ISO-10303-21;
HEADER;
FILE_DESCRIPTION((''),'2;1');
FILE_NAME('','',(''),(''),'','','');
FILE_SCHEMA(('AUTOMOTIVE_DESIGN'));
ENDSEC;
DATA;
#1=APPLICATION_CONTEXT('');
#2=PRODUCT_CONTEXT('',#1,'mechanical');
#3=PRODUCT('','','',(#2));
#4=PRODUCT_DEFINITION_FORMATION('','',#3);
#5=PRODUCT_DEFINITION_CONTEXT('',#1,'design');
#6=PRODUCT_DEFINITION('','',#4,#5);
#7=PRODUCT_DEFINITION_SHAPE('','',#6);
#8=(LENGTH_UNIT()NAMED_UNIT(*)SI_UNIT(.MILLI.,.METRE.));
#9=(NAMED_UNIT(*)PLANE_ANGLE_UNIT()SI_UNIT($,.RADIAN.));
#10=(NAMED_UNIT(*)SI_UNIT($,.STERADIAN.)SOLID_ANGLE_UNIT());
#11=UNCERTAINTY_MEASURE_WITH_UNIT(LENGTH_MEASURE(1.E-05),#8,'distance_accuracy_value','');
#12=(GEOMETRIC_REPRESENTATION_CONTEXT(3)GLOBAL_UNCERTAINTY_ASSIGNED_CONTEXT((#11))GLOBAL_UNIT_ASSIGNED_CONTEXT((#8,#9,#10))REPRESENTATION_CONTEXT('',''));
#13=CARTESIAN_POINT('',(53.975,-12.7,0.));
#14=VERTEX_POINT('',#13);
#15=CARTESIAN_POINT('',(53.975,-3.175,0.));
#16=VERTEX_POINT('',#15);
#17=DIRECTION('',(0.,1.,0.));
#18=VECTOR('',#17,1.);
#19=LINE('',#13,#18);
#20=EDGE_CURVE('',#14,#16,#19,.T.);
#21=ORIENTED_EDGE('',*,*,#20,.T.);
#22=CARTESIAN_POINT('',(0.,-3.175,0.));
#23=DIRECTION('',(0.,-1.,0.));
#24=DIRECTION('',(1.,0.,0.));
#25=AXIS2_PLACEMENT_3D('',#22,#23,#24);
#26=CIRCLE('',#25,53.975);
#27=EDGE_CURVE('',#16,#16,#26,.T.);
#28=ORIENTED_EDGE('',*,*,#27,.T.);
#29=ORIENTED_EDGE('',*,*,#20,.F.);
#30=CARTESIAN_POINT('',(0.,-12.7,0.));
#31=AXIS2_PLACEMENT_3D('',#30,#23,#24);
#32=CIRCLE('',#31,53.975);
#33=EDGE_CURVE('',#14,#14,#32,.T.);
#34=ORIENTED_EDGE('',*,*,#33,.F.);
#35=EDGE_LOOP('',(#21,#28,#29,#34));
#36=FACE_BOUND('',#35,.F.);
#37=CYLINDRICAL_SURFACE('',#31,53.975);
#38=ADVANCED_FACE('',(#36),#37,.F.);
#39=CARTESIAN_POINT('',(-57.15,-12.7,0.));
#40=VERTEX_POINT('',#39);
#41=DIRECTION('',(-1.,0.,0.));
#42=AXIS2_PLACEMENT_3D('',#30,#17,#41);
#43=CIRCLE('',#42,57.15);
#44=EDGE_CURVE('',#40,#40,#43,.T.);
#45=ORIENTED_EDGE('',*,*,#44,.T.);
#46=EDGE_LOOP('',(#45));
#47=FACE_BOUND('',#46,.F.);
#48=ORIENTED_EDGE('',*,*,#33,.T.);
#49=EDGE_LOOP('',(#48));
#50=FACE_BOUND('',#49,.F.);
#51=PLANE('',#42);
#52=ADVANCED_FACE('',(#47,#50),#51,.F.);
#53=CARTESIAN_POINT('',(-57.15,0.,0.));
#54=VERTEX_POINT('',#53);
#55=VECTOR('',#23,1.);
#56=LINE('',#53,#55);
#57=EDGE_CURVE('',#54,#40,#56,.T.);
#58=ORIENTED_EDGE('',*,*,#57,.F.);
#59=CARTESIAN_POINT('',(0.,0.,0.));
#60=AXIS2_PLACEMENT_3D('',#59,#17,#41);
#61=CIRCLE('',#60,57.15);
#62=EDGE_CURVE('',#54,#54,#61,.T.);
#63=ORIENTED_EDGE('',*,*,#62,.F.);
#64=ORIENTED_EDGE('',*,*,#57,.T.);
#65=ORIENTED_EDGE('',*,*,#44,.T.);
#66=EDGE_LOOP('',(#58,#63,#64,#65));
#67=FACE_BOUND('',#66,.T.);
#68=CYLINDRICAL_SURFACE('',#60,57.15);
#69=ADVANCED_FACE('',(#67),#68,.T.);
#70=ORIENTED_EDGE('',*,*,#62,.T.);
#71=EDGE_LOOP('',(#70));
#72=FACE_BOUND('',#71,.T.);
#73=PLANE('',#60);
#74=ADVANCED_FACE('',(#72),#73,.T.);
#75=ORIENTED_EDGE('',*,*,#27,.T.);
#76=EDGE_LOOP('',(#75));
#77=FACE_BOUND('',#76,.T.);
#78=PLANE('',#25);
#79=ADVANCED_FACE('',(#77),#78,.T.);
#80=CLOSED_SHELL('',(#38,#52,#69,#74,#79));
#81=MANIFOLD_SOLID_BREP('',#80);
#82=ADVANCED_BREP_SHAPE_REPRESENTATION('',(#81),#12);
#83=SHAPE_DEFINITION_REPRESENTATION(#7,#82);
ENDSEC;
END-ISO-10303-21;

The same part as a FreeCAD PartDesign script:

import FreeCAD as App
import Part
import Sketcher

V = App.Vector
Q = App.Units.Quantity

doc = App.newDocument("Part")
body = doc.addObject("PartDesign::Body", "Body")

sketch1 = body.newObject("Sketcher::SketchObject", "Sketch")
sketch1.AttachmentSupport = (doc.getObject("XZ_Plane"), [""])
sketch1.MapMode = "FlatFace"
sketch1.addGeometry(Part.Circle(V(0, 0, 0), V(0, 0, 1), 57), False)
sketch1.addConstraint([
    Sketcher.Constraint("Coincident", 0, 3, -1, 1),
    Sketcher.Constraint("Diameter", 0, Q("4.5 in")),
])
pad1 = body.newObject("PartDesign::Pad", "Pad")
pad1.Profile = sketch1
pad1.Length = Q("0.5 in")

sketch2 = body.newObject("Sketcher::SketchObject", "Sketch001")
sketch2.AttachmentSupport = (doc.getObject("XZ_Plane"), [""])
sketch2.MapMode = "FlatFace"
sketch2.AttachmentOffset = App.Placement(V(0, 0, 0.5 * 25.4), App.Rotation())
sketch2.addGeometry(Part.Circle(V(0, 0, 0), V(0, 0, 1), 54), False)
sketch2.addConstraint([
    Sketcher.Constraint("Coincident", 0, 3, -1, 1),
    Sketcher.Constraint("Diameter", 0, Q("4.25 in")),
])
pocket1 = body.newObject("PartDesign::Pocket", "Pocket")
pocket1.Profile = sketch2
pocket1.Length = Q("0.375 in")

doc.recompute()
